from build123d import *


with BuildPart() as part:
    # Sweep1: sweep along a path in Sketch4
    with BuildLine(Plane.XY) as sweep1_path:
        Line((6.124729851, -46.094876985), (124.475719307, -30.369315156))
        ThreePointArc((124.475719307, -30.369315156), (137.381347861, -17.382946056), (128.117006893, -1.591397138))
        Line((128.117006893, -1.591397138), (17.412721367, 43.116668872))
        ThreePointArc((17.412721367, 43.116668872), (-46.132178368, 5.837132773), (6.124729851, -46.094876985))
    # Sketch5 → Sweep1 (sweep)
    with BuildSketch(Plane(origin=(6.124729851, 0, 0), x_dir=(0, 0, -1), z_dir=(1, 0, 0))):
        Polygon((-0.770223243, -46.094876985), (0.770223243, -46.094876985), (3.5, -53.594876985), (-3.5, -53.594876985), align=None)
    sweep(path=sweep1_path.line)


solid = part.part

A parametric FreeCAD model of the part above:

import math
import FreeCAD as App
import Part
import Sketcher

V = App.Vector
Q = App.Units.Quantity

doc = App.newDocument("Part")
params = doc.addObject("Spreadsheet::Sheet", "Params")
for row, (alias, value) in enumerate([
    ("sketch1_height", "7 mm"),
    ("sketch2_radius", "15 mm"),
    ("sketch2_radius2", "46.5 mm"),
], start=1):
    params.set(f"A{row}", alias)
    params.set(f"B{row}", "=" + value)
    params.setAlias(f"B{row}", alias)

body = doc.addObject("PartDesign::Body", "Body")

sketch1 = doc.addObject("Sketcher::SketchObject", "Sketch")
body.addObject(sketch1)
sketch1.AttachmentSupport = (doc.YZ_Plane, [""])
sketch1.MapMode = "FlatFace"
sketch1.AttachmentOffset = App.Placement(V(0, 0, 6.12473), App.Rotation())
sketch1.addGeometry([
    Part.LineSegment(V(-46.1, -0.8, 0), V(-46.1, 0.8, 0)),
    Part.LineSegment(V(-46.1, 0.8, 0), V(-53.6, 3.5, 0)),
    Part.LineSegment(V(-53.6, 3.5, 0), V(-53.6, -3.5, 0)),
    Part.LineSegment(V(-53.6, -3.5, 0), V(-46.1, -0.8, 0)),
], False)
sketch1.addConstraint([
    Sketcher.Constraint("Coincident", 0, 2, 1, 1),
    Sketcher.Constraint("Coincident", 1, 2, 2, 1),
    Sketcher.Constraint("Coincident", 2, 2, 3, 1),
    Sketcher.Constraint("Coincident", 3, 2, 0, 1),
    Sketcher.Constraint("Vertical", 0),
    Sketcher.Constraint("Vertical", 2),
    Sketcher.Constraint("Equal", 1, 3),
    Sketcher.Constraint("DistanceY", 2, 2, 2, 1, 7.0),
    Sketcher.Constraint("Angle", 1, Q("160 deg")),
    Sketcher.Constraint("DistanceY", -1, 1, 1, 2, 3.5),
    Sketcher.Constraint("DistanceX", 1, 2, 0, 2, 7.5),
    Sketcher.Constraint("DistanceX", 0, 2, -1, 1, 46.094877),
])
sketch1.setExpression("Constraints[7]", "Params.sketch1_height")

sketch2 = doc.addObject("Sketcher::SketchObject", "Sketch001")
body.addObject(sketch2)
sketch2.AttachmentSupport = (doc.XY_Plane, [""])
sketch2.MapMode = "FlatFace"
sketch2.addGeometry([
    Part.LineSegment(V(6, -46, 0), V(124, -30, 0)),
    Part.ArcOfCircle(Part.Circle(V(123, -16, 0), V(0, 0, 1), 15), math.radians(-82), math.radians(68)),
    Part.LineSegment(V(128, -2, 0), V(17, 43, 0)),
    Part.ArcOfCircle(Part.Circle(V(0, 0, 0), V(0, 0, 1), 46), math.radians(68), math.radians(278)),
], False)
sketch2.addConstraint([
    Sketcher.Constraint("Tangent", 0, 2, 1, 1),
    Sketcher.Constraint("Tangent", 1, 2, 2, 1),
    Sketcher.Constraint("Tangent", 2, 2, 3, 1),
    Sketcher.Constraint("Tangent", 3, 2, 0, 1),
    Sketcher.Constraint("Coincident", 3, 3, -1, 1),
    Sketcher.Constraint("Radius", 1, 15.0),
    Sketcher.Constraint("Radius", 3, 46.5),
    Sketcher.Constraint("DistanceX", -1, 1, 1, 3, 122.5),
    Sketcher.Constraint("DistanceY", 1, 3, -1, 1, 15.5),
])
sketch2.setExpression("Constraints[5]", "Params.sketch2_radius")
sketch2.setExpression("Constraints[6]", "Params.sketch2_radius2")
doc.recompute()

additivepipe = doc.addObject("PartDesign::AdditivePipe", "AdditivePipe")
body.addObject(additivepipe)
additivepipe.Profile = sketch1
additivepipe.Spine = (sketch2, ["Edge1", "Edge2", "Edge3", "Edge4"])

doc.recompute()
